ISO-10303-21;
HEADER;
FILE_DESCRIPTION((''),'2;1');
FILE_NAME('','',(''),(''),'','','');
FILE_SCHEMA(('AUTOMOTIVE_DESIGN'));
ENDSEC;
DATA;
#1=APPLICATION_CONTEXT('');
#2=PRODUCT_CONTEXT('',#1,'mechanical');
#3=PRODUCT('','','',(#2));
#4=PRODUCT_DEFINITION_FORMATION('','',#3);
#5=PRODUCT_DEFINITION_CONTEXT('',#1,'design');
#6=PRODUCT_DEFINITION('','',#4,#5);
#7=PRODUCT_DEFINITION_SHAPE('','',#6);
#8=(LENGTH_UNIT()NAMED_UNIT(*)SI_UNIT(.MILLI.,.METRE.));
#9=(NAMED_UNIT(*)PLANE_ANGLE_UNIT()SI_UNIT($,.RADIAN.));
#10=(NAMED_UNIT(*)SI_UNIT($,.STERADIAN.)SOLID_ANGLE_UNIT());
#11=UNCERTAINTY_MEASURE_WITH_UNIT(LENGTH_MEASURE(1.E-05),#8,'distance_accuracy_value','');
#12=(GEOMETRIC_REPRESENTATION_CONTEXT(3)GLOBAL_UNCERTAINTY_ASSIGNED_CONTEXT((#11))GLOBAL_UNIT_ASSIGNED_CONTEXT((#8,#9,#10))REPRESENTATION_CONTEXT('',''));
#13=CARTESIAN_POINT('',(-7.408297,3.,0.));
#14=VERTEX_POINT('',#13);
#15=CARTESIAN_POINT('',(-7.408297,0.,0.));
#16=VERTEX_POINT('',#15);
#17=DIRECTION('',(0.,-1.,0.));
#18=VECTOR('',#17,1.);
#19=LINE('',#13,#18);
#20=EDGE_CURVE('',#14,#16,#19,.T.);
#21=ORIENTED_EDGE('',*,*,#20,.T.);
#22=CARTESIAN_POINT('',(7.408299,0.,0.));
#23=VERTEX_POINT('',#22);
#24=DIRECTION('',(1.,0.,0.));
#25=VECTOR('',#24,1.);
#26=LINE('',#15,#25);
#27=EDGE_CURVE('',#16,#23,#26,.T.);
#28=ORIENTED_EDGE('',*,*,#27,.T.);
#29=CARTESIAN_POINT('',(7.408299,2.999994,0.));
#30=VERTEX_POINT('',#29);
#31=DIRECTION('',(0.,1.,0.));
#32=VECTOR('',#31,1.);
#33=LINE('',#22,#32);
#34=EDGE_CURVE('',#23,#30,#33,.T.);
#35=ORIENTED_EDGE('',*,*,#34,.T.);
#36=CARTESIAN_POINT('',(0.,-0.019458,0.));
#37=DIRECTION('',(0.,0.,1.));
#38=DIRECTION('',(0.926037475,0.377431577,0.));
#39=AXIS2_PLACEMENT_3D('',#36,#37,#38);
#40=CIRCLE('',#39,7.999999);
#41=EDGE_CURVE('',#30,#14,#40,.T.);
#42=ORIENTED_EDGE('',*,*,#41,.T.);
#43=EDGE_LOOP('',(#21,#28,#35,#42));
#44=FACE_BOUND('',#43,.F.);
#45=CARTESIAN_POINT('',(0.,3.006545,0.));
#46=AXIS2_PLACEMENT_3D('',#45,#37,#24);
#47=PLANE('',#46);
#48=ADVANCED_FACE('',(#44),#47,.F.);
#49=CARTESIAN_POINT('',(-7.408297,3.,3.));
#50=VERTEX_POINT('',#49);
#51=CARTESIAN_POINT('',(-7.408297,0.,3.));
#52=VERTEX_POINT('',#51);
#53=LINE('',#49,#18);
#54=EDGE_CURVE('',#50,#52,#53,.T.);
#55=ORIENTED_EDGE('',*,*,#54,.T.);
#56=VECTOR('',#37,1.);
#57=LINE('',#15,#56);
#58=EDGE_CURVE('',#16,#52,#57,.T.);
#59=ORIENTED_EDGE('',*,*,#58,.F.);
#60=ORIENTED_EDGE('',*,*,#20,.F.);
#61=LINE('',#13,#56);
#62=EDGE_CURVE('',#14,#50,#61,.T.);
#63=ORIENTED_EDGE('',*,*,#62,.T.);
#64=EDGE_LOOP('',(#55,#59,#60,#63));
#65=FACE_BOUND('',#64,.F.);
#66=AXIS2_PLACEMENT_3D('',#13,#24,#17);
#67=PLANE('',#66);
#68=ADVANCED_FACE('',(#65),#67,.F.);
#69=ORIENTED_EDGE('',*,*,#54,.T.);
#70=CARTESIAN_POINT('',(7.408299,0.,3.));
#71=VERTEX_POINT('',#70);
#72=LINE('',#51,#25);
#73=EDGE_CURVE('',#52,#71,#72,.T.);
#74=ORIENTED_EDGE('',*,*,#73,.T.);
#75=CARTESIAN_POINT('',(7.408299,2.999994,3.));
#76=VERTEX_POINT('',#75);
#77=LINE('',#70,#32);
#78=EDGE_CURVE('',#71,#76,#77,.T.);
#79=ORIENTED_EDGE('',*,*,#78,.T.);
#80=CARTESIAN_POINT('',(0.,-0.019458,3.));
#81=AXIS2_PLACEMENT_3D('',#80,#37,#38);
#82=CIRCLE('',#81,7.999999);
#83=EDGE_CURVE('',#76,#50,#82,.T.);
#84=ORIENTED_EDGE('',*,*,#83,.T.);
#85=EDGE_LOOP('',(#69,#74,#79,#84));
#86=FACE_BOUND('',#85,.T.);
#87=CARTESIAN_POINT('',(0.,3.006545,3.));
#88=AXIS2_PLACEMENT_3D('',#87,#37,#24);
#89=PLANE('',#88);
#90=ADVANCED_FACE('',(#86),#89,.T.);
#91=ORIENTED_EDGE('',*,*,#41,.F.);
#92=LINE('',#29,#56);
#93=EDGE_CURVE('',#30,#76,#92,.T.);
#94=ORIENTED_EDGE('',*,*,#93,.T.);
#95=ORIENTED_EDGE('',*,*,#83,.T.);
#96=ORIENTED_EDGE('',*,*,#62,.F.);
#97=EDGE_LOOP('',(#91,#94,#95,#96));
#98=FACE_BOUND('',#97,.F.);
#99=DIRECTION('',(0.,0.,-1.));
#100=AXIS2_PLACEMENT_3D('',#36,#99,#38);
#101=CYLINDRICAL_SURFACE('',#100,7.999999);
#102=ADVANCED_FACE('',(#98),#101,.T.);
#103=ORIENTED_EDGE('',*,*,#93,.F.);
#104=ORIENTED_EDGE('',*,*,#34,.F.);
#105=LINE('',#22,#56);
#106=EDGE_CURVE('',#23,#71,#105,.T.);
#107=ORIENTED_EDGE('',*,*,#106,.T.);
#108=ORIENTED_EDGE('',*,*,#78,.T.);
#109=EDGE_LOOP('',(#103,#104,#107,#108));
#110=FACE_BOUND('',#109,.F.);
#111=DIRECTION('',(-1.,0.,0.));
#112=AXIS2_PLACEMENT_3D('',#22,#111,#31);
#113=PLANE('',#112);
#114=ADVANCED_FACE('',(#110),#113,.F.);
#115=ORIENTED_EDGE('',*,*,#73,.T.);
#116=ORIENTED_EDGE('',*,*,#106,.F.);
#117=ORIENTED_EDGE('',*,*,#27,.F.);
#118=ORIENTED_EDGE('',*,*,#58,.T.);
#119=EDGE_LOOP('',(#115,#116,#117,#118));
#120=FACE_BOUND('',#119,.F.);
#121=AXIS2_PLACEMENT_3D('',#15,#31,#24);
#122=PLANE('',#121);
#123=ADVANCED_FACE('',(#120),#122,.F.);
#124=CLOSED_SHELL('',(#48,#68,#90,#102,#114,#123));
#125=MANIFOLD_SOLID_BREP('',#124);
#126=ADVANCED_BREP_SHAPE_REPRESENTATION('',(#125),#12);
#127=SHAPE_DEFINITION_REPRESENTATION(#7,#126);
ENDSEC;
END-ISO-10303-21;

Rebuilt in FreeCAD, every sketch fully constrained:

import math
import FreeCAD as App
import Part
import Sketcher
Q = App.Units.Quantity

doc = App.newDocument("Part")
body = doc.addObject("PartDesign::Body", "Body")

sketch1 = body.newObject("Sketcher::SketchObject", "Sketch")
sketch1.AttachmentSupport = (doc.getObject("XY_Plane"), [""])
sketch1.MapMode = "FlatFace"
sketch1.addGeometry(Part.LineSegment(App.Vector(7.4, 0, 0), App.Vector(7.4, 3, 0)), False)
sketch1.addGeometry(Part.ArcOfCircle(Part.Circle(App.Vector(0, 0, 0), App.Vector(0, 0, 1), 8), math.radians(22), math.radians(158)), False)
sketch1.addGeometry(Part.LineSegment(App.Vector(-7.4, 3, 0), App.Vector(-7.4, 0, 0)), False)
sketch1.addGeometry(Part.LineSegment(App.Vector(-7.4, 0, 0), App.Vector(7.4, 0, 0)), False)
sketch1.addConstraint(Sketcher.Constraint("Coincident", 0, 2, 1, 1))
sketch1.addConstraint(Sketcher.Constraint("Coincident", 1, 2, 2, 1))
sketch1.addConstraint(Sketcher.Constraint("Coincident", 2, 2, 3, 1))
sketch1.addConstraint(Sketcher.Constraint("Coincident", 3, 2, 0, 1))
sketch1.addConstraint(Sketcher.Constraint("Vertical", 0))
sketch1.addConstraint(Sketcher.Constraint("Vertical", 2))
sketch1.addConstraint(Sketcher.Constraint("Horizontal", 3))
sketch1.addConstraint(Sketcher.Constraint("Symmetric", 2, 2, 3, 2, -1, 1))
sketch1.addConstraint(Sketcher.Constraint("PointOnObject", 1, 3, -2))
sketch1.addConstraint(Sketcher.Constraint("Radius", 1, Q("7.999999 mm")))
sketch1.addConstraint(Sketcher.Constraint("DistanceY", 2, 2, 2, 1, Q("3 mm")))
sketch1.addConstraint(Sketcher.Constraint("DistanceX", -1, 1, 0, 2, Q("7.408299 mm")))
pad1 = body.newObject("PartDesign::Pad", "Pad")
pad1.Profile = sketch1
pad1.Length = 3

doc.recompute()
